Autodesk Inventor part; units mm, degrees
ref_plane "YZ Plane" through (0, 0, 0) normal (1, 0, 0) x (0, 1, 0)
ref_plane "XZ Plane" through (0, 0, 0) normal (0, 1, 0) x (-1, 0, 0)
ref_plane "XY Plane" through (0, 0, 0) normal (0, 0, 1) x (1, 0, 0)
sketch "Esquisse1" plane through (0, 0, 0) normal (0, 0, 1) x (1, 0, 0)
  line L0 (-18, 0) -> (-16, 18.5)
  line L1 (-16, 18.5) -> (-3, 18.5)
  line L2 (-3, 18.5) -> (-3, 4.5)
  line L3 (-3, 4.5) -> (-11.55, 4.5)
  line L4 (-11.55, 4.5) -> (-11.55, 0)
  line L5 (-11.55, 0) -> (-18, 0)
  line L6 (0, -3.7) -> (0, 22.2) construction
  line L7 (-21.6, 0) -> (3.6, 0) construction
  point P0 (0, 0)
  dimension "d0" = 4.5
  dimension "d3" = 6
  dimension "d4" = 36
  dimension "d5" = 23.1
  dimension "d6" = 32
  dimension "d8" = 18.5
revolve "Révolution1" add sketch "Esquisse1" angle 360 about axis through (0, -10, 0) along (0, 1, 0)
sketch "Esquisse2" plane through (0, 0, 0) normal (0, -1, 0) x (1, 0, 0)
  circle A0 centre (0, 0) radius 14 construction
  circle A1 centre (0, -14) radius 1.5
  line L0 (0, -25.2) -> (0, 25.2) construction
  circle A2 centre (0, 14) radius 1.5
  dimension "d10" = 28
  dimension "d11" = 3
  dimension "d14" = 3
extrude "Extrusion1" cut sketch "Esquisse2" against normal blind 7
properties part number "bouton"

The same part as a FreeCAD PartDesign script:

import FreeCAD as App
import Part
import Sketcher
Q = App.Units.Quantity


def add_polygon(sketch, points):
    """Adds a closed chain of lines whose ends are joined by coincident constraints."""
    first, n = sketch.GeometryCount, len(points)
    for a, b in zip(points, points[1:] + points[:1]):
        sketch.addGeometry(Part.LineSegment(App.Vector(*a, 0), App.Vector(*b, 0)), False)
    for i in range(n):
        sketch.addConstraint(Sketcher.Constraint("Coincident", first + i, 2, first + (i + 1) % n, 1))

doc = App.newDocument("Part")
body = doc.addObject("PartDesign::Body", "Body")

# Sketch on XY plane
sketch1 = body.newObject("Sketcher::SketchObject", "Sketch")
sketch1.AttachmentSupport = (doc.getObject("XY_Plane"), [""])
sketch1.MapMode = "FlatFace"
add_polygon(sketch1, [(-16, 18.5), (-18, 0), (-11.6, 0), (-11.6, 4.5), (-3, 4.5), (-3, 18.5)])  # lines 0-5
sketch1.addConstraint([
    Sketcher.Constraint("Horizontal", 1),
    Sketcher.Constraint("Vertical", 2),
    Sketcher.Constraint("Horizontal", 3),
    Sketcher.Constraint("Vertical", 4),
    Sketcher.Constraint("Horizontal", 5),
    Sketcher.Constraint("PointOnObject", 0, 2, -1),
    Sketcher.Constraint("DistanceY", 2, 1, 2, 2, Q("4.5 mm")),
    Sketcher.Constraint("DistanceY", -1, 1, 4, 2, Q("18.5 mm")),
    Sketcher.Constraint("DistanceX", 5, 2, 5, 1, Q("13 mm")),
    Sketcher.Constraint("DistanceX", 0, 2, -1, 1, Q("18 mm")),
    Sketcher.Constraint("DistanceX", 3, 2, -1, 1, Q("3 mm")),
    Sketcher.Constraint("DistanceX", 1, 1, 1, 2, Q("6.45 mm")),
])
revolution = body.newObject("PartDesign::Revolution", "Revolution")
revolution.Profile = sketch1
revolution.ReferenceAxis = (sketch1, ["V_Axis"])
revolution.Angle = 360

# Sketch on XZ plane
sketch2 = body.newObject("Sketcher::SketchObject", "Sketch001")
sketch2.AttachmentSupport = (doc.getObject("XZ_Plane"), [""])
sketch2.MapMode = "FlatFace"
sketch2.addGeometry([
    Part.Circle(App.Vector(0, -14, 0), App.Vector(0, 0, 1), 1.5),
    Part.Circle(App.Vector(0, 14, 0), App.Vector(0, 0, 1), 1.5),
], False)
sketch2.addConstraint([
    Sketcher.Constraint("Equal", 0, 1),
    Sketcher.Constraint("Symmetric", 0, 3, 1, 3, -1, 1),
    Sketcher.Constraint("PointOnObject", 0, 3, -2),
    Sketcher.Constraint("Diameter", 0, Q("3 mm")),
    Sketcher.Constraint("DistanceY", 0, 3, 1, 3, Q("28 mm")),
])
pocket1 = body.newObject("PartDesign::Pocket", "Pocket")
pocket1.Profile = sketch2
pocket1.Length = 7

doc.recompute()
